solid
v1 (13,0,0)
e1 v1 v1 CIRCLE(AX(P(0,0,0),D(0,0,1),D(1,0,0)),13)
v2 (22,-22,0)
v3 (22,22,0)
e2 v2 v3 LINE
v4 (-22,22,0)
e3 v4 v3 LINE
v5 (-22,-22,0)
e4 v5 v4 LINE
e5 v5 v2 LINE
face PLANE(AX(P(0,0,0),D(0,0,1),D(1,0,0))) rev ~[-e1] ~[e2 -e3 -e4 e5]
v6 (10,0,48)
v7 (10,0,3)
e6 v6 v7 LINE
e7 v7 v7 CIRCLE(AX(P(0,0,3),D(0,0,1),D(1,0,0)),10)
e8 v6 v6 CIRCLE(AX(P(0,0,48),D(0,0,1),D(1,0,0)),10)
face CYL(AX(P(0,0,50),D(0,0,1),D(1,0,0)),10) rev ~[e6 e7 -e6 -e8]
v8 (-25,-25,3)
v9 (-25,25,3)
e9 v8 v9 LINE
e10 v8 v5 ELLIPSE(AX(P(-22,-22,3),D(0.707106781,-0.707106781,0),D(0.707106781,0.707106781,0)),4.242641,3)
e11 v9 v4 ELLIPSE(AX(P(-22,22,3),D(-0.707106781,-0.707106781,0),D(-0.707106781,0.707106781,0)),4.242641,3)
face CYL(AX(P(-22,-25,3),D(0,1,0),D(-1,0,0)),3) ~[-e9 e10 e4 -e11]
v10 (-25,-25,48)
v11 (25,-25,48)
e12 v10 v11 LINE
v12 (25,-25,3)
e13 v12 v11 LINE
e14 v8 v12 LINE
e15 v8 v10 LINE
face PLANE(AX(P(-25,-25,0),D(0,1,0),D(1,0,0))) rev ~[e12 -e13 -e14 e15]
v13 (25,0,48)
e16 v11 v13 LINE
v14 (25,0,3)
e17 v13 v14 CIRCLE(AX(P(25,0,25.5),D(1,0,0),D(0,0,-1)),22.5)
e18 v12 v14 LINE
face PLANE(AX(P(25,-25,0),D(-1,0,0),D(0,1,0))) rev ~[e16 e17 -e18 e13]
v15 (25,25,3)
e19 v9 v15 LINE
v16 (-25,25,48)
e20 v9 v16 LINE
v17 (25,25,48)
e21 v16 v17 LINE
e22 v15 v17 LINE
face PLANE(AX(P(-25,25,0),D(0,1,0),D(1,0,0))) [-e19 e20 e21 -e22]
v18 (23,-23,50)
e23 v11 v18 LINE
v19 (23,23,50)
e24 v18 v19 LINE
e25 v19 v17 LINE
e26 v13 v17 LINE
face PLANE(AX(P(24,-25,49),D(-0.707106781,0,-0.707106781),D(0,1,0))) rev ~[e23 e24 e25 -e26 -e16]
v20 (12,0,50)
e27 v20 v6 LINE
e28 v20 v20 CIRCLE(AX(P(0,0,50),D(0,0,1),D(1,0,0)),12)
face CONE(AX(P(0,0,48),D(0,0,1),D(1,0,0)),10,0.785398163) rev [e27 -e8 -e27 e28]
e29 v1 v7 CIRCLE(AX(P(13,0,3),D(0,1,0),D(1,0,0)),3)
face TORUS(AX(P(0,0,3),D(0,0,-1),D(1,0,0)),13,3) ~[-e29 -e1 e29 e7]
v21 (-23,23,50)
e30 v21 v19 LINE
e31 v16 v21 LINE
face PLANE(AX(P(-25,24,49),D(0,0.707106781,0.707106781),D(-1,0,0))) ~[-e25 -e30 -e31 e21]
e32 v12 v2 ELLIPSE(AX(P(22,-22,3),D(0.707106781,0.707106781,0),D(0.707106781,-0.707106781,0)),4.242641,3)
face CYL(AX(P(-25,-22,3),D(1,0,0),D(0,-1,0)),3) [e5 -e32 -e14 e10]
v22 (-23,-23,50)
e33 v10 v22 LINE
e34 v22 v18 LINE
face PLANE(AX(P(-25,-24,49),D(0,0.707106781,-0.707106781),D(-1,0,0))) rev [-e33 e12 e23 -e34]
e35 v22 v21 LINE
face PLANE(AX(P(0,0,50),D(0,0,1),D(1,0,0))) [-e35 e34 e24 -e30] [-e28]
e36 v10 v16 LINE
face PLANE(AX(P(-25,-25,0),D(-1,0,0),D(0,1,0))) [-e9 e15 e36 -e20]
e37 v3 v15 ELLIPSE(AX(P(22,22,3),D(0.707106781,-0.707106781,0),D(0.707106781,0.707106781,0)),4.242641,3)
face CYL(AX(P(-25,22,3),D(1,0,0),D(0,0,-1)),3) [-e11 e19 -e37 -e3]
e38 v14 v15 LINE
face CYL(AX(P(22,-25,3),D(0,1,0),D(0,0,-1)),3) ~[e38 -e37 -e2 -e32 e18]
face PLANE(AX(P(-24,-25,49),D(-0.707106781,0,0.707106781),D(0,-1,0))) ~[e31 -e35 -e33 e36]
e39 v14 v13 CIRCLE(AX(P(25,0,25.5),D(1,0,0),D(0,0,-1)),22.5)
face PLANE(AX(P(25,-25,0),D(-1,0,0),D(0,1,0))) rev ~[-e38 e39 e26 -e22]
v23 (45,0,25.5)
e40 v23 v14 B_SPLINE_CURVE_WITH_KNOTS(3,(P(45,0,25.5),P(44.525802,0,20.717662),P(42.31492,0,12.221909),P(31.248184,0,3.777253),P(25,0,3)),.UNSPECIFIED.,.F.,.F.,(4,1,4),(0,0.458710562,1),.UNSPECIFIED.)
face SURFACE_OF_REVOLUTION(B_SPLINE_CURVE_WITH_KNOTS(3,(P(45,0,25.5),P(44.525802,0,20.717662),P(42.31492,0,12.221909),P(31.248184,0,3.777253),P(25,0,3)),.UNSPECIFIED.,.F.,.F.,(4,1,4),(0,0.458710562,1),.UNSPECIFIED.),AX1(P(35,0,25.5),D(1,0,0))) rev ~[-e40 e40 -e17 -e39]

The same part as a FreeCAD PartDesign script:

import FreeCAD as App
import Part
import Sketcher
from FreeCAD import Vector


def edges_at(feature, points):
    """Names of the edges that pass closest to the given points."""
    edges = feature.Shape.Edges
    near = lambda p: min(range(len(edges)), key=lambda i: edges[i].distToShape(Part.Vertex(*p))[0])
    return sorted({f"Edge{near(p) + 1}" for p in points})


def add_polygon(sketch, points):
    """Adds a closed chain of lines whose ends are joined by coincident constraints."""
    first, n = sketch.GeometryCount, len(points)
    for a, b in zip(points, points[1:] + points[:1]):
        sketch.addGeometry(Part.LineSegment(App.Vector(*a, 0), App.Vector(*b, 0)), False)
    for i in range(n):
        sketch.addConstraint(Sketcher.Constraint("Coincident", first + i, 2, first + (i + 1) % n, 1))

doc = App.newDocument("Part")
params = doc.addObject("Spreadsheet::Sheet", "Params")
for row, (alias, value) in enumerate([
    ("sketch1_width", "50 mm"),
    ("pad1_length", "50 mm"),
    ("sketch2_diameter", "20 mm"),
    ("chamfer_size", "2 mm"),
    ("fillet_radius", "3 mm"),
    ("revolution_angle", "360 deg"),
], start=1):
    params.set(f"A{row}", alias)
    params.set(f"B{row}", "=" + value)
    params.setAlias(f"B{row}", alias)

body = doc.addObject("PartDesign::Body", "Body")

# Sketch on XY plane
sketch1 = doc.addObject("Sketcher::SketchObject", "Sketch")
body.addObject(sketch1)
sketch1.AttachmentSupport = (doc.XY_Plane, [""])
sketch1.MapMode = "FlatFace"
add_polygon(sketch1, [(-25, 25), (-25, -25), (25, -25), (25, 25)])  # lines 0-3
sketch1.addConstraint([
    Sketcher.Constraint("Vertical", 0),
    Sketcher.Constraint("Horizontal", 1),
    Sketcher.Constraint("Vertical", 2),
    Sketcher.Constraint("Horizontal", 3),
    Sketcher.Constraint("Symmetric", 0, 2, 2, 2, -1, 1),
    Sketcher.Constraint("Equal", 3, 0),
    Sketcher.Constraint("DistanceX", 1, 1, 1, 2, 50.0),
])
sketch1.setExpression("Constraints[10]", "Params.sketch1_width")
pad1 = doc.addObject("PartDesign::Pad", "Pad")
body.addObject(pad1)
pad1.Profile = sketch1
pad1.setExpression("Length", "Params.pad1_length")

# Sketch on XY plane
sketch2 = doc.addObject("Sketcher::SketchObject", "Sketch001")
body.addObject(sketch2)
sketch2.AttachmentSupport = (doc.XY_Plane, [""])
sketch2.MapMode = "FlatFace"
sketch2.AttachmentOffset = App.Placement(Vector(0, 0, 50), App.Rotation())
sketch2.addGeometry(Part.Circle(Vector(0, 0, 0), Vector(0, 0, 1), 10), False)
sketch2.addConstraint([
    Sketcher.Constraint("Coincident", 0, 3, -1, 1),
    Sketcher.Constraint("Diameter", 0, 20.0),
])
sketch2.setExpression("Constraints[1]", "Params.sketch2_diameter")
pocket1 = doc.addObject("PartDesign::Pocket", "Pocket")
body.addObject(pocket1)
pocket1.Profile = sketch2
pocket1.Type = "ThroughAll"
doc.recompute()

chamfer = doc.addObject("PartDesign::Chamfer", "Chamfer")
body.addObject(chamfer)
chamfer.Base = (pocket1, edges_at(pocket1, [
    (0, -25, 50),
    (-25, 0, 50),
    (25, 0, 50),
    (0, 25, 50),
    (-10, 0, 50),
]))
chamfer.setExpression("Size", "Params.chamfer_size")
doc.recompute()

fillet = doc.addObject("PartDesign::Fillet", "Fillet")
body.addObject(fillet)
fillet.Base = (chamfer, edges_at(chamfer, [
    (0, -25, 0),
    (-25, 0, 0),
    (25, 0, 0),
    (0, 25, 0),
    (-10, 0, 0),
]))
fillet.setExpression("Radius", "Params.fillet_radius")

# Sketch on XZ plane
sketch3 = doc.addObject("Sketcher::SketchObject", "Sketch002")
body.addObject(sketch3)
sketch3.AttachmentSupport = (doc.XZ_Plane, [""])
sketch3.MapMode = "FlatFace"
sketch3.addGeometry([
    Part.LineSegment(Vector(45, 25.5, 0), Vector(25, 25.5, 0)),
    Part.LineSegment(Vector(25, 25.5, 0), Vector(25, 3, 0)),
    Part.BSplineCurve([Vector(45, 25.5, 0), Vector(44.525802, 20.717662, 0), Vector(42.31492, 12.221909, 0), Vector(31.248184, 3.777253, 0), Vector(25, 3, 0)], [4, 1, 4], [0, 0.458710562, 1], False, 3, [1, 1, 1, 1, 1], False),
], False)
sketch3.addGeometry(Part.LineSegment(Vector(25, 25.5, 0), Vector(45, 25.5, 0)), True)  # axis
sketch3.addConstraint([
    Sketcher.Constraint("Block", 2),
    Sketcher.Constraint("Coincident", 0, 2, 1, 1),
    Sketcher.Constraint("Coincident", 1, 2, 2, 2),
    Sketcher.Constraint("Coincident", 2, 1, 0, 1),
    Sketcher.Constraint("Horizontal", 0),
    Sketcher.Constraint("Vertical", 1),
    Sketcher.Constraint("Horizontal", 3),
    Sketcher.Constraint("Coincident", 3, 1, 0, 2),
    Sketcher.Constraint("Equal", 0, 3),
])
revolution = doc.addObject("PartDesign::Revolution", "Revolution")
body.addObject(revolution)
revolution.Profile = sketch3
revolution.ReferenceAxis = (sketch3, ["Axis0"])
revolution.setExpression("Angle", "Params.revolution_angle")

doc.recompute()
